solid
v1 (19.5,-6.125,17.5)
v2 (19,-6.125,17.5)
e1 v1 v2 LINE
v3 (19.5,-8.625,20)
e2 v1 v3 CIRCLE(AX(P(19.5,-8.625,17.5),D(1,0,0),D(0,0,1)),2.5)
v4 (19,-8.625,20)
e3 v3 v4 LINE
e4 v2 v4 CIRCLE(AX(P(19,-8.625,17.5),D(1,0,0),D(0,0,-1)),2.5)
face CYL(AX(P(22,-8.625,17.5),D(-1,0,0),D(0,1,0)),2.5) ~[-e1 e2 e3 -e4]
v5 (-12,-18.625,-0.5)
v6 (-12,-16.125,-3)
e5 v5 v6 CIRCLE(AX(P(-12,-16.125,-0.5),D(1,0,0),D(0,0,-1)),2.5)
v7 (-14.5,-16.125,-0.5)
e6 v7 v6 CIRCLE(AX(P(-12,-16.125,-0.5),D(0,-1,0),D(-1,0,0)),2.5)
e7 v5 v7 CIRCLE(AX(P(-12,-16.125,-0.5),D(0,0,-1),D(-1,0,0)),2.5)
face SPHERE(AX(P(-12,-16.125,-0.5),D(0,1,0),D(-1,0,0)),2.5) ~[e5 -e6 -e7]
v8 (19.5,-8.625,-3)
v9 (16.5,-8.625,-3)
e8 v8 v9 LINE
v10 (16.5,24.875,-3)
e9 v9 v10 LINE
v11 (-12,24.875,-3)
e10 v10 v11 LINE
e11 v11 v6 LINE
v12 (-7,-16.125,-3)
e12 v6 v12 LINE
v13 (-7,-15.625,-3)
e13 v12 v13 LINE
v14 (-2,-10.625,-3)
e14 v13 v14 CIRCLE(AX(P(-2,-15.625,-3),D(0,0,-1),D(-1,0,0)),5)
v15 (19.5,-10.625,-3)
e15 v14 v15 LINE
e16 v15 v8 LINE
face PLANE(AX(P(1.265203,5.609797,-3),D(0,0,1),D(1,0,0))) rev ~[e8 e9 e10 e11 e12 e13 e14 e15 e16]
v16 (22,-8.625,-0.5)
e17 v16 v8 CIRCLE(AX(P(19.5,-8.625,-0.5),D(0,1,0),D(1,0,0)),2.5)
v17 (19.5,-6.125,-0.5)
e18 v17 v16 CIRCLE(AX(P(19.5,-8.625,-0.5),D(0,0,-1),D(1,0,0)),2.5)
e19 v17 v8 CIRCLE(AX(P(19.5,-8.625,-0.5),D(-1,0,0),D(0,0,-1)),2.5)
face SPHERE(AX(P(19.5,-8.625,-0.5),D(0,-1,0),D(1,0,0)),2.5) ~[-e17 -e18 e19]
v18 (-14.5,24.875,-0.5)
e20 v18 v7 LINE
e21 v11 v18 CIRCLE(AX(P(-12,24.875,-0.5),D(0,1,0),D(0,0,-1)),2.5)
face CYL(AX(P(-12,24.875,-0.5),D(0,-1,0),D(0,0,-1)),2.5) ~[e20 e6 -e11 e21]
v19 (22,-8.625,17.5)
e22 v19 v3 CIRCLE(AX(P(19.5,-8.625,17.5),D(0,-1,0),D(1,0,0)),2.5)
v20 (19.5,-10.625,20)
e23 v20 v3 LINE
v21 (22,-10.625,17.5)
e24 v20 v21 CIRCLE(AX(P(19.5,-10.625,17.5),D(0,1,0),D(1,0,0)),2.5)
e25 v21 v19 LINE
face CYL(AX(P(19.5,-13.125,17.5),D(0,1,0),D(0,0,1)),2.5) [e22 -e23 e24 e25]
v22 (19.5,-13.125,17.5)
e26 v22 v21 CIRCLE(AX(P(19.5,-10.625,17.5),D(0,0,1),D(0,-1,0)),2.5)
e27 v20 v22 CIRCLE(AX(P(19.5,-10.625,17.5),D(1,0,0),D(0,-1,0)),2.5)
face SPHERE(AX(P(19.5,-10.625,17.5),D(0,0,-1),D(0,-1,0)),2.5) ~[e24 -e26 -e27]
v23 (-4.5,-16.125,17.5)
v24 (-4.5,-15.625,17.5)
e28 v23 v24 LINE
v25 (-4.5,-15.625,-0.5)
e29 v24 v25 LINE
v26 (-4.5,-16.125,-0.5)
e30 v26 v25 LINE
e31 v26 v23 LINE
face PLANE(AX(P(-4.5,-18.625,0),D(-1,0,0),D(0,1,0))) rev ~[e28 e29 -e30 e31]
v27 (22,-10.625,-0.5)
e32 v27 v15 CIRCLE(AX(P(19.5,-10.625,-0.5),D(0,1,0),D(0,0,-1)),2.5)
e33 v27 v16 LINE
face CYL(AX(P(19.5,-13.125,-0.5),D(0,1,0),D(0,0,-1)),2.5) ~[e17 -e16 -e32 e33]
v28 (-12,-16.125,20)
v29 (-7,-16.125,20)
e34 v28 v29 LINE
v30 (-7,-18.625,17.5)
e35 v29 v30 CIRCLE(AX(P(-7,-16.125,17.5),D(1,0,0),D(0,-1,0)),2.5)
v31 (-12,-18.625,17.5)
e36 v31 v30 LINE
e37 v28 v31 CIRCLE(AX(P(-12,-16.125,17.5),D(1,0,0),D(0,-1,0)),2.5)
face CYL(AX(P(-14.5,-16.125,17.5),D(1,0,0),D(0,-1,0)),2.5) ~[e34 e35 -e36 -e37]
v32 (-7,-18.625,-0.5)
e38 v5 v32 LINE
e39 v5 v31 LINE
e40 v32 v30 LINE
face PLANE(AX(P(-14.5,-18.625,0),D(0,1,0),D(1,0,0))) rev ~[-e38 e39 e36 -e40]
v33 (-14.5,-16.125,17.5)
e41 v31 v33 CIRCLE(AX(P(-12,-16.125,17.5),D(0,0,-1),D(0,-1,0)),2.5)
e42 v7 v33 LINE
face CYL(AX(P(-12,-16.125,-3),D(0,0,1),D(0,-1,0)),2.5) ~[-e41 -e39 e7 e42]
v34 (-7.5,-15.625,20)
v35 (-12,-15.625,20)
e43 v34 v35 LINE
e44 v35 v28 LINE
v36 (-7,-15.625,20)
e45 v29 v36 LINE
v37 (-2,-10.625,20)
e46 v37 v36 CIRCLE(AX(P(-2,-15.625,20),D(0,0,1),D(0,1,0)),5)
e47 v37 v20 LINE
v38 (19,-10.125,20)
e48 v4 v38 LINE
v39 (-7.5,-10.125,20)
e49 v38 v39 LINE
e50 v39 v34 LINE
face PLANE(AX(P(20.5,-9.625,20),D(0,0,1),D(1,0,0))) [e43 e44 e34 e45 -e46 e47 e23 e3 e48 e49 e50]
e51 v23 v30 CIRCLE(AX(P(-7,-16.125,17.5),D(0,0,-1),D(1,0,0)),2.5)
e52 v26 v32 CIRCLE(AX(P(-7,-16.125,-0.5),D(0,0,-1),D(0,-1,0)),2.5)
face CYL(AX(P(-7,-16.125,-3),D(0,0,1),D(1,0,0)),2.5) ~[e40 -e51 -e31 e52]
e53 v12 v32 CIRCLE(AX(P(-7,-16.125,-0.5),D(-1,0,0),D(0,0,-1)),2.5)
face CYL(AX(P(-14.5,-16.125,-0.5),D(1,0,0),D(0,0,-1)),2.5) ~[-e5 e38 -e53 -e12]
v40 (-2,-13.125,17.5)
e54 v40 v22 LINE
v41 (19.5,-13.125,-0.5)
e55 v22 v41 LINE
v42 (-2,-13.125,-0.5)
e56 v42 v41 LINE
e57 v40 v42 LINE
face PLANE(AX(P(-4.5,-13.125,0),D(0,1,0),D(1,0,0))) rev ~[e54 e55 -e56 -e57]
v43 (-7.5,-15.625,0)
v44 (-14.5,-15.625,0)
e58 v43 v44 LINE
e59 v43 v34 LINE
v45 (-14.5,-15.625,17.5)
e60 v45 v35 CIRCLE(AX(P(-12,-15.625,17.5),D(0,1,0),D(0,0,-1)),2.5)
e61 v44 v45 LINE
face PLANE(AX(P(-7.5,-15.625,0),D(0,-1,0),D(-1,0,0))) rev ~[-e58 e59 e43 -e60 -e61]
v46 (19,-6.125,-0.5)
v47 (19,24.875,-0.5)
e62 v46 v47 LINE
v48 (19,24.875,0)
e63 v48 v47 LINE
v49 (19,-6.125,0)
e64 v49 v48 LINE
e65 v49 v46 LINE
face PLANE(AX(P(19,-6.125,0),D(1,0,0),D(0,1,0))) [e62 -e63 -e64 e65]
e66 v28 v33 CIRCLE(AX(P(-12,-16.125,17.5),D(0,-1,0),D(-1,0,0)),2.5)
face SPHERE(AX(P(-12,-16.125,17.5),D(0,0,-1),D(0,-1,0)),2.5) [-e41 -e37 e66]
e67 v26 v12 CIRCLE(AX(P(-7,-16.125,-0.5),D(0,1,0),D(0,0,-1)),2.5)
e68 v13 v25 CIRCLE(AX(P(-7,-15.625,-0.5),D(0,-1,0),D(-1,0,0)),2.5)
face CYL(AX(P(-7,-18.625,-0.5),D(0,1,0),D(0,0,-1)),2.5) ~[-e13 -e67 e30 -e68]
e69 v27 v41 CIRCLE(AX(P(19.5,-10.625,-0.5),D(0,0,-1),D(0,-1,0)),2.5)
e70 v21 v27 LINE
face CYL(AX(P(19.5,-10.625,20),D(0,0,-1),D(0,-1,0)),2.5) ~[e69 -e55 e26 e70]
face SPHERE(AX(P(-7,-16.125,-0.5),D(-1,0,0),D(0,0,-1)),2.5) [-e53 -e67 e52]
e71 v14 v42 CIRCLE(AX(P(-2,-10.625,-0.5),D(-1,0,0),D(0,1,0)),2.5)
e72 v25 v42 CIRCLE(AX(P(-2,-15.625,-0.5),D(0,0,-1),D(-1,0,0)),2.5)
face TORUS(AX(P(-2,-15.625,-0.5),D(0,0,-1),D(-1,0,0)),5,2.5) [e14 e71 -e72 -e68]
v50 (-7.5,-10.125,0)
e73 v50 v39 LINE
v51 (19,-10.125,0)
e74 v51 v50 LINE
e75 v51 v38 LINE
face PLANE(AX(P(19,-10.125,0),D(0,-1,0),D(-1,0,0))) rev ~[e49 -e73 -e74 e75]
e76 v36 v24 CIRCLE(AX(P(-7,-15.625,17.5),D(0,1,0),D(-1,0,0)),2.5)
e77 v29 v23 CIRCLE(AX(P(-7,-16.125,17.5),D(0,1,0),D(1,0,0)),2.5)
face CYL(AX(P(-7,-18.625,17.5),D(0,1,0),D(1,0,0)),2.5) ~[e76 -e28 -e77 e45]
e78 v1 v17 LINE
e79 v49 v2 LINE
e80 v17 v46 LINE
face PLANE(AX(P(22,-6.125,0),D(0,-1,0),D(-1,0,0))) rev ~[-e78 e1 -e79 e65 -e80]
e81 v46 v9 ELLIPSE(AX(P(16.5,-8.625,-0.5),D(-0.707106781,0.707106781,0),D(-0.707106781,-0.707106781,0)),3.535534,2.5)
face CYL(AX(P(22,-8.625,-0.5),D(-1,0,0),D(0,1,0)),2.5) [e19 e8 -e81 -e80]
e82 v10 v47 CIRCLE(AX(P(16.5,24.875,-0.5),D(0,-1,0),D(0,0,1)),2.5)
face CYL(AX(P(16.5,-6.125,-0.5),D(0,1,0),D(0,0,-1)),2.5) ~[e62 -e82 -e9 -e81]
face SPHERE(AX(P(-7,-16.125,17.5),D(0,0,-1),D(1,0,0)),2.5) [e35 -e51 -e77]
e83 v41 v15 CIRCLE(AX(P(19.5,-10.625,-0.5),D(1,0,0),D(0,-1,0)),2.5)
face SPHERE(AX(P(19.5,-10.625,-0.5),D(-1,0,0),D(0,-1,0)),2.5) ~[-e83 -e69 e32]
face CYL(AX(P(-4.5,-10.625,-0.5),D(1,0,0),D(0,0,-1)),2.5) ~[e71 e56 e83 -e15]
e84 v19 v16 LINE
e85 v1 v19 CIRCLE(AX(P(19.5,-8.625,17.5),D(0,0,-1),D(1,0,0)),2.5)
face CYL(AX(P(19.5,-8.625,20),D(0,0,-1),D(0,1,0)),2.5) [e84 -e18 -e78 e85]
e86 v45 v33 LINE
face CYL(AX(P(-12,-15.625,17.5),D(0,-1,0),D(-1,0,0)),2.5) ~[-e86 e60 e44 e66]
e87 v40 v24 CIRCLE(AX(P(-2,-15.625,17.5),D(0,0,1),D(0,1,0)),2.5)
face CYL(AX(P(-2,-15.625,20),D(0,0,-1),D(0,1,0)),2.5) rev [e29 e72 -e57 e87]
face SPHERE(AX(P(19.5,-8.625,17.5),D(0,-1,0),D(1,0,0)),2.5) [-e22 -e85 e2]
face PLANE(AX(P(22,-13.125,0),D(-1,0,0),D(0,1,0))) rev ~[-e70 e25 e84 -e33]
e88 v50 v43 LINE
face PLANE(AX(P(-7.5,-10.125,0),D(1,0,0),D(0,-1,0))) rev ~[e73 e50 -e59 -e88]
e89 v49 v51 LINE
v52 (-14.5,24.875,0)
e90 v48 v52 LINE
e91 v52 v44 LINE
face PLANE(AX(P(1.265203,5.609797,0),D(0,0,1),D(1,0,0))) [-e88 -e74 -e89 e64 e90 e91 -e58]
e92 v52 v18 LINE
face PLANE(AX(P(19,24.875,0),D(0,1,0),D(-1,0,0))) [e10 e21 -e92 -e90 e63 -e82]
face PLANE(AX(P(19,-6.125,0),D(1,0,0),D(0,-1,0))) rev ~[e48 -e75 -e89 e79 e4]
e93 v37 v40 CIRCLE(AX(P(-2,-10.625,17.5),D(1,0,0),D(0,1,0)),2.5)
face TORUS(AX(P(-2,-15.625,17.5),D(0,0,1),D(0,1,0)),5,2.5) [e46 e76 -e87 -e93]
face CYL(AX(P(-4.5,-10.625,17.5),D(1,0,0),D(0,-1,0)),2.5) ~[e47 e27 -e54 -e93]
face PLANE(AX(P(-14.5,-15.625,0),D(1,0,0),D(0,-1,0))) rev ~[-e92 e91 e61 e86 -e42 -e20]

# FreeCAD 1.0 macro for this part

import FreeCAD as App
import Part
import Sketcher

V = App.Vector
Q = App.Units.Quantity


def edges_at(feature, points):
    """Names of the edges that pass closest to the given points."""
    edges = feature.Shape.Edges
    near = lambda p: min(range(len(edges)), key=lambda i: edges[i].distToShape(Part.Vertex(*p))[0])
    return sorted({f"Edge{near(p) + 1}" for p in points})


def add_polygon(sketch, points):
    """Adds a closed chain of lines whose ends are joined by coincident constraints."""
    first, n = sketch.GeometryCount, len(points)
    for a, b in zip(points, points[1:] + points[:1]):
        sketch.addGeometry(Part.LineSegment(App.Vector(*a, 0), App.Vector(*b, 0)), False)
    for i in range(n):
        sketch.addConstraint(Sketcher.Constraint("Coincident", first + i, 2, first + (i + 1) % n, 1))

doc = App.newDocument("Part")
body = doc.addObject("PartDesign::Body", "Body")

# Sketch on XY plane
sketch1 = body.newObject("Sketcher::SketchObject", "Sketch")
sketch1.AttachmentSupport = (doc.getObject("XY_Plane"), [""])
sketch1.MapMode = "FlatFace"
add_polygon(sketch1, [(19, 24.9), (-14.5, 24.9), (-14.5, -18.6), (-4.5, -18.6), (-4.5, -13.1), (22, -13.1), (22, -6.1), (19, -6.1)])  # lines 0-7
sketch1.addConstraint([
    Sketcher.Constraint("Horizontal", 0),
    Sketcher.Constraint("Vertical", 1),
    Sketcher.Constraint("Horizontal", 2),
    Sketcher.Constraint("Vertical", 3),
    Sketcher.Constraint("Horizontal", 4),
    Sketcher.Constraint("Vertical", 5),
    Sketcher.Constraint("Horizontal", 6),
    Sketcher.Constraint("Vertical", 7),
    Sketcher.Constraint("DistanceX", 2, 1, 2, 2, Q("10 mm")),
    Sketcher.Constraint("DistanceX", 6, 2, 6, 1, Q("3 mm")),
    Sketcher.Constraint("DistanceY", 5, 1, 5, 2, Q("7 mm")),
    Sketcher.Constraint("DistanceY", 7, 1, 7, 2, Q("31 mm")),
    Sketcher.Constraint("DistanceX", 0, 2, 0, 1, Q("33.5 mm")),
    Sketcher.Constraint("DistanceY", 1, 2, 1, 1, Q("43.5 mm")),
    Sketcher.Constraint("DistanceX", -1, 1, 4, 2, Q("22 mm")),
    Sketcher.Constraint("DistanceY", -1, 1, 0, 2, Q("24.875 mm")),
])
pad1 = body.newObject("PartDesign::Pad", "Pad")
pad1.Profile = sketch1
pad1.Length = 3
pad1.Reversed = True

# Sketch on XY plane
sketch2 = body.newObject("Sketcher::SketchObject", "Sketch001")
sketch2.AttachmentSupport = (doc.getObject("XY_Plane"), [""])
sketch2.MapMode = "FlatFace"
add_polygon(sketch2, [(22, -6.1), (19, -6.1), (19, -10.1), (-7.5, -10.1), (-7.5, -15.6), (-14.5, -15.6), (-14.5, -18.6), (-4.5, -18.6), (-4.5, -13.1), (22, -13.1)])  # lines 0-9
sketch2.addConstraint([
    Sketcher.Constraint("Horizontal", 0),
    Sketcher.Constraint("Vertical", 1),
    Sketcher.Constraint("Horizontal", 2),
    Sketcher.Constraint("Vertical", 3),
    Sketcher.Constraint("Horizontal", 4),
    Sketcher.Constraint("Vertical", 5),
    Sketcher.Constraint("Horizontal", 6),
    Sketcher.Constraint("Vertical", 7),
    Sketcher.Constraint("Horizontal", 8),
    Sketcher.Constraint("Vertical", 9),
    Sketcher.Constraint("Equal", 2, 8),
    Sketcher.Constraint("Equal", 0, 5),
    Sketcher.Constraint("Equal", 3, 7),
    Sketcher.Constraint("Equal", 4, 9),
    Sketcher.Constraint("DistanceX", 0, 2, 0, 1, Q("3 mm")),
    Sketcher.Constraint("DistanceX", 4, 2, 4, 1, Q("7 mm")),
    Sketcher.Constraint("DistanceX", 2, 2, 2, 1, Q("26.5 mm")),
    Sketcher.Constraint("DistanceY", 3, 2, 3, 1, Q("5.5 mm")),
    Sketcher.Constraint("DistanceX", -1, 1, 0, 2, Q("19 mm")),
    Sketcher.Constraint("DistanceY", 0, 2, -1, 1, Q("6.125 mm")),
])
pad2 = body.newObject("PartDesign::Pad", "Pad001")
pad2.Profile = sketch2
pad2.Length = 20
doc.recompute()

fillet = body.newObject("PartDesign::Fillet", "Fillet")
fillet.Base = (pad2, edges_at(pad2, [
    (-14.5, 3.125, -3),
    (-14.5, -18.625, 8.5),
    (-9.5, -18.625, -3),
    (-4.5, -15.875, -3),
    (8.75, -13.125, -3),
    (-4.5, -13.125, 8.5),
    (-4.5, -18.625, 8.5),
    (22, -13.125, 8.5),
    (22, -9.625, -3),
    (8.75, -13.125, 20),
    (-4.5, -15.875, 20),
    (-9.5, -18.625, 20),
    (22, -9.625, 20),
    (22, -6.125, 8.5),
    (20.5, -6.125, -3),
    (19, 9.375, -3),
    (20.5, -6.125, 20),
    (-14.5, -17.125, 20),
]))
fillet.Radius = 2.5

doc.recompute()
